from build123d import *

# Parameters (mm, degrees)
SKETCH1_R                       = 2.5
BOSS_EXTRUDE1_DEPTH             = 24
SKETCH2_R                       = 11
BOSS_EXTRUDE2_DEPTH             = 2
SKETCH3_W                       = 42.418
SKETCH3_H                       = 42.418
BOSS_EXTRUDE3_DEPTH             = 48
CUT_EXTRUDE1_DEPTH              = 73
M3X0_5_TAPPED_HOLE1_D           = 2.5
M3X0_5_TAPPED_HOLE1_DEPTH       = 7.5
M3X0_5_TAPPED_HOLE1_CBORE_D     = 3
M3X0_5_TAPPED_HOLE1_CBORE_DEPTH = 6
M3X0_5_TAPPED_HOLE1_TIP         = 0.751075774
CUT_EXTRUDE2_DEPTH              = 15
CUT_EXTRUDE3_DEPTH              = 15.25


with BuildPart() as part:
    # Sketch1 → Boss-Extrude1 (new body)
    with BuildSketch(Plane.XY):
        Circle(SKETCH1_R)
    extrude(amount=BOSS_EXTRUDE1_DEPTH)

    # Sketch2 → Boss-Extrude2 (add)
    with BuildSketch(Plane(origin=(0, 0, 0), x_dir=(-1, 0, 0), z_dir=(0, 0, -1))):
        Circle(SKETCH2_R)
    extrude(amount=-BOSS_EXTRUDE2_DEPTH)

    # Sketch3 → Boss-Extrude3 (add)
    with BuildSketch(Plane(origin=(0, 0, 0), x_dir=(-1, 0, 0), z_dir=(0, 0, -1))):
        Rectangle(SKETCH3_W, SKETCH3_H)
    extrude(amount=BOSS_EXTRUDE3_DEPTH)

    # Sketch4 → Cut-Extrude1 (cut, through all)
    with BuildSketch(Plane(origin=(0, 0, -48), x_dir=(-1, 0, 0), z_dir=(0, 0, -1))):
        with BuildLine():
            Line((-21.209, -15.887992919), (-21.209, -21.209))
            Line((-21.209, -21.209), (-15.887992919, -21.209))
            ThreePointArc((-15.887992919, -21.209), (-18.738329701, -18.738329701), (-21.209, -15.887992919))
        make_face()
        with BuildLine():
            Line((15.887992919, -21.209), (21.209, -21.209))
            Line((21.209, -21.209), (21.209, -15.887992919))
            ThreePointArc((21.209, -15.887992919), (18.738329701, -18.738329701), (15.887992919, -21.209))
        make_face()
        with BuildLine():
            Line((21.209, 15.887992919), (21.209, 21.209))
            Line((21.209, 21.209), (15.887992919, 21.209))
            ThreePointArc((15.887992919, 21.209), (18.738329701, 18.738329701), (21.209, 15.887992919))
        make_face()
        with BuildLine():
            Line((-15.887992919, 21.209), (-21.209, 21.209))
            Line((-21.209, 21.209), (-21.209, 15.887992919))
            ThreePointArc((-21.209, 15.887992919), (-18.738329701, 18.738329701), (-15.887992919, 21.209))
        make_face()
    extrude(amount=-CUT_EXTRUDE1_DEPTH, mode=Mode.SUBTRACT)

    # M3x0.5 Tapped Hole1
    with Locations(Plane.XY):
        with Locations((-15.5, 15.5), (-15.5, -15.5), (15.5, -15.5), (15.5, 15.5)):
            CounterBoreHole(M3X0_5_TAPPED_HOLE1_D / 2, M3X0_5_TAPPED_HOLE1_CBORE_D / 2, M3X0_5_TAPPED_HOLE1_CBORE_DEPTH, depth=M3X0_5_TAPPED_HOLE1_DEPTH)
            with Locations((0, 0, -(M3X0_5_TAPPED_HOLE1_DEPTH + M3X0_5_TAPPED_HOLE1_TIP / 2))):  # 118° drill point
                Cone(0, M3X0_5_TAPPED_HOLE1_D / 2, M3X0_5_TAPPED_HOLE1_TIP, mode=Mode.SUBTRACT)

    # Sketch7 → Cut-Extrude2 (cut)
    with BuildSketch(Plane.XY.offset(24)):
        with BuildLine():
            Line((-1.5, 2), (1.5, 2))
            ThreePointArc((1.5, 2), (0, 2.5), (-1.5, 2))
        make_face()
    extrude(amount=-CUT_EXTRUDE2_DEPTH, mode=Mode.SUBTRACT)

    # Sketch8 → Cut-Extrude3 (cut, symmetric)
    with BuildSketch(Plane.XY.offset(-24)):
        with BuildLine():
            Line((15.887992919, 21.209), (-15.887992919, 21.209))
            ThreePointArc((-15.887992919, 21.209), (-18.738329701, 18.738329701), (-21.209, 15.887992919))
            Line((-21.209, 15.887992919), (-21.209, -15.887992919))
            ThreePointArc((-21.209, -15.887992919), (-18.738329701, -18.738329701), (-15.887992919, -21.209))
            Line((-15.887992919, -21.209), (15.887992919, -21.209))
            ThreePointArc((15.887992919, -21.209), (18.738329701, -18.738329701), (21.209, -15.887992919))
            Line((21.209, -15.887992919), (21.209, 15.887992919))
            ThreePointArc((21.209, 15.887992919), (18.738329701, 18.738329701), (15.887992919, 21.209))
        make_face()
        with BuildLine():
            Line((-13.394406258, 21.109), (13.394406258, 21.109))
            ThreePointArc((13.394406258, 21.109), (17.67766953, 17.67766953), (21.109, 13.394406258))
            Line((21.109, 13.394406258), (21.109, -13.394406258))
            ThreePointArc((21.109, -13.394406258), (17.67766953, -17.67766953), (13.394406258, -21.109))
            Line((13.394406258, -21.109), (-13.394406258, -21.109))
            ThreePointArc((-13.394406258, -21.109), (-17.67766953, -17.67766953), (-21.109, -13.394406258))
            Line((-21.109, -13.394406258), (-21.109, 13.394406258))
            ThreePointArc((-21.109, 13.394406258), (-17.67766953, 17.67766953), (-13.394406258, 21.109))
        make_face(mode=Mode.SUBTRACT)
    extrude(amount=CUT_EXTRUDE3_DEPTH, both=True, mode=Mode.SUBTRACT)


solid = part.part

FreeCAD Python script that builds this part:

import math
import FreeCAD as App
import Part
import Sketcher
from FreeCAD import Vector


def add_polygon(sketch, points):
    """Adds a closed chain of lines whose ends are joined by coincident constraints."""
    first, n = sketch.GeometryCount, len(points)
    for a, b in zip(points, points[1:] + points[:1]):
        sketch.addGeometry(Part.LineSegment(App.Vector(*a, 0), App.Vector(*b, 0)), False)
    for i in range(n):
        sketch.addConstraint(Sketcher.Constraint("Coincident", first + i, 2, first + (i + 1) % n, 1))

doc = App.newDocument("Part")
body = doc.addObject("PartDesign::Body", "Body")

# Sketch on XY plane
sketch1 = doc.addObject("Sketcher::SketchObject", "Sketch")
body.addObject(sketch1)
sketch1.AttachmentSupport = (doc.XY_Plane, [""])
sketch1.MapMode = "FlatFace"
sketch1.addGeometry(Part.Circle(Vector(0, 0, 0), Vector(0, 0, 1), 2.5), False)
sketch1.addConstraint([
    Sketcher.Constraint("Coincident", 0, 3, -1, 1),
    Sketcher.Constraint("Diameter", 0, 5.0),
])
pad1 = doc.addObject("PartDesign::Pad", "Pad")
body.addObject(pad1)
pad1.Profile = sketch1
pad1.Length = 24

# Sketch on XY plane
sketch2 = doc.addObject("Sketcher::SketchObject", "Sketch001")
body.addObject(sketch2)
sketch2.AttachmentSupport = (doc.XY_Plane, [""])
sketch2.MapMode = "FlatFace"
sketch2.addGeometry(Part.Circle(Vector(0, 0, 0), Vector(0, 0, 1), 11), False)
sketch2.addConstraint([
    Sketcher.Constraint("Coincident", 0, 3, -1, 1),
    Sketcher.Constraint("Diameter", 0, 22.0),
])
pad2 = doc.addObject("PartDesign::Pad", "Pad001")
body.addObject(pad2)
pad2.Profile = sketch2
pad2.Length = 2

# Sketch on XY plane
sketch3 = doc.addObject("Sketcher::SketchObject", "Sketch002")
body.addObject(sketch3)
sketch3.AttachmentSupport = (doc.XY_Plane, [""])
sketch3.MapMode = "FlatFace"
add_polygon(sketch3, [(21, 21), (21, -21), (-21, -21), (-21, 21)])  # lines 0-3
sketch3.addConstraint([
    Sketcher.Constraint("Vertical", 0),
    Sketcher.Constraint("Horizontal", 1),
    Sketcher.Constraint("Vertical", 2),
    Sketcher.Constraint("Horizontal", 3),
    Sketcher.Constraint("Symmetric", 0, 2, 2, 2, -1, 1),
    Sketcher.Constraint("Equal", 3, 0),
    Sketcher.Constraint("DistanceX", 1, 2, 1, 1, 42.418),
])
pad3 = doc.addObject("PartDesign::Pad", "Pad002")
body.addObject(pad3)
pad3.Profile = sketch3
pad3.Length = 48
pad3.Reversed = True

# Sketch on XY plane
sketch4 = doc.addObject("Sketcher::SketchObject", "Sketch003")
body.addObject(sketch4)
sketch4.AttachmentSupport = (doc.XY_Plane, [""])
sketch4.MapMode = "FlatFace"
sketch4.AttachmentOffset = App.Placement(Vector(0, 0, -48), App.Rotation())
sketch4.addGeometry([
    Part.LineSegment(Vector(21, -16, 0), Vector(21, -21, 0)),  # 0
    Part.LineSegment(Vector(21, -21, 0), Vector(16, -21, 0)),  # 1
    Part.ArcOfCircle(Part.Circle(Vector(0, 0, 0), Vector(0, 0, 1), 27), math.radians(-53.16), math.radians(-36.84)),  # 2
    Part.LineSegment(Vector(-16, -21, 0), Vector(-21, -21, 0)),  # 3
    Part.LineSegment(Vector(-21, -21, 0), Vector(-21, -16, 0)),  # 4
    Part.ArcOfCircle(Part.Circle(Vector(0, 0, 0), Vector(0, 0, 1), 27), math.radians(-143.16), math.radians(-126.84)),  # 5
    Part.LineSegment(Vector(-21, 16, 0), Vector(-21, 21, 0)),  # 6
    Part.LineSegment(Vector(-21, 21, 0), Vector(-16, 21, 0)),  # 7
    Part.ArcOfCircle(Part.Circle(Vector(0, 0, 0), Vector(0, 0, 1), 27), math.radians(126.84), math.radians(143.16)),  # 8
    Part.LineSegment(Vector(16, 21, 0), Vector(21, 21, 0)),  # 9
    Part.LineSegment(Vector(21, 21, 0), Vector(21, 16, 0)),  # 10
    Part.ArcOfCircle(Part.Circle(Vector(0, 0, 0), Vector(0, 0, 1), 27), math.radians(36.84), math.radians(53.16)),  # 11
], False)
sketch4.addConstraint([
    Sketcher.Constraint("Coincident", 0, 2, 1, 1),
    Sketcher.Constraint("Coincident", 1, 2, 2, 1),
    Sketcher.Constraint("Coincident", 2, 2, 0, 1),
    Sketcher.Constraint("Coincident", 3, 2, 4, 1),
    Sketcher.Constraint("Coincident", 4, 2, 5, 1),
    Sketcher.Constraint("Coincident", 5, 2, 3, 1),
    Sketcher.Constraint("Coincident", 6, 2, 7, 1),
    Sketcher.Constraint("Coincident", 7, 2, 8, 1),
    Sketcher.Constraint("Coincident", 8, 2, 6, 1),
    Sketcher.Constraint("Coincident", 9, 2, 10, 1),
    Sketcher.Constraint("Coincident", 10, 2, 11, 1),
    Sketcher.Constraint("Coincident", 11, 2, 9, 1),
    Sketcher.Constraint("Vertical", 0),
    Sketcher.Constraint("Horizontal", 1),
    Sketcher.Constraint("Horizontal", 3),
    Sketcher.Constraint("Vertical", 4),
    Sketcher.Constraint("Vertical", 6),
    Sketcher.Constraint("Horizontal", 7),
    Sketcher.Constraint("Horizontal", 9),
    Sketcher.Constraint("Vertical", 10),
    Sketcher.Constraint("Coincident", 2, 3, -1, 1),
    Sketcher.Constraint("Coincident", 5, 3, -1, 1),
    Sketcher.Constraint("Coincident", 8, 3, -1, 1),
    Sketcher.Constraint("Coincident", 11, 3, -1, 1),
    Sketcher.Constraint("Equal", 2, 5),
    Sketcher.Constraint("Equal", 5, 8),
    Sketcher.Constraint("Equal", 8, 11),
    Sketcher.Constraint("Symmetric", 0, 2, 6, 2, -1, 1),
    Sketcher.Constraint("Symmetric", 3, 2, 9, 2, -1, 1),
    Sketcher.Constraint("Symmetric", 0, 2, 3, 2, -2),
    Sketcher.Constraint("Equal", 9, 0),
    Sketcher.Constraint("Radius", 2, 26.5),
    Sketcher.Constraint("DistanceX", -1, 1, 0, 2, 21.209),
])
pocket1 = doc.addObject("PartDesign::Pocket", "Pocket")
body.addObject(pocket1)
pocket1.Profile = sketch4
pocket1.Type = "ThroughAll"
pocket1.Reversed = True

# Sketch on XY plane
sketch5 = doc.addObject("Sketcher::SketchObject", "Sketch004")
body.addObject(sketch5)
sketch5.AttachmentSupport = (doc.XY_Plane, [""])
sketch5.MapMode = "FlatFace"
sketch5.addGeometry([
    Part.Circle(Vector(-15.5, 15.5, 0), Vector(0, 0, 1), 1.2),
    Part.Circle(Vector(-15.5, -15.5, 0), Vector(0, 0, 1), 1.2),
    Part.Circle(Vector(15.5, -15.5, 0), Vector(0, 0, 1), 1.2),
    Part.Circle(Vector(15.5, 15.5, 0), Vector(0, 0, 1), 1.2),
], False)
sketch5.addConstraint([
    Sketcher.Constraint("Equal", 0, 1),
    Sketcher.Constraint("Equal", 1, 2),
    Sketcher.Constraint("Equal", 2, 3),
    Sketcher.Constraint("Symmetric", 0, 3, 2, 3, -1, 1),
    Sketcher.Constraint("Symmetric", 1, 3, 3, 3, -1, 1),
    Sketcher.Constraint("Symmetric", 1, 3, 2, 3, -2),
    Sketcher.Constraint("Diameter", 0, 2.5),
    Sketcher.Constraint("DistanceY", 1, 3, 0, 3, 31.0),
    Sketcher.Constraint("DistanceX", 1, 3, 2, 3, 31.0),
])
doc.recompute()
hole = doc.addObject("PartDesign::Hole", "Hole")
body.addObject(hole)
hole.Profile = sketch5
hole.ThreadType = "None"
hole.Diameter = 2.5
hole.DepthType = "Dimension"
hole.Depth = 7.5
hole.DrillPoint = "Angled"
hole.DrillPointAngle = 118
hole.HoleCutType = "Counterbore"
hole.HoleCutDiameter = 3
hole.HoleCutDepth = 6

# Sketch on XY plane
sketch6 = doc.addObject("Sketcher::SketchObject", "Sketch005")
body.addObject(sketch6)
sketch6.AttachmentSupport = (doc.XY_Plane, [""])
sketch6.MapMode = "FlatFace"
sketch6.AttachmentOffset = App.Placement(Vector(0, 0, 24), App.Rotation())
sketch6.addGeometry([
    Part.LineSegment(Vector(-1.5, 2, 0), Vector(1.5, 2, 0)),
    Part.ArcOfCircle(Part.Circle(Vector(0, 0, 0), Vector(0, 0, 1), 2.5), math.radians(53), math.radians(127)),
], False)
sketch6.addConstraint([
    Sketcher.Constraint("Coincident", 0, 1, 1, 2),
    Sketcher.Constraint("Coincident", 1, 1, 0, 2),
    Sketcher.Constraint("Horizontal", 0),
    Sketcher.Constraint("Coincident", 1, 3, -1, 1),
    Sketcher.Constraint("Radius", 1, 2.5),
    Sketcher.Constraint("DistanceX", 0, 1, 0, 2, 3.0),
])
pocket2 = doc.addObject("PartDesign::Pocket", "Pocket001")
body.addObject(pocket2)
pocket2.Profile = sketch6
pocket2.Length = 15

# Sketch on XY plane
sketch7 = doc.addObject("Sketcher::SketchObject", "Sketch006")
body.addObject(sketch7)
sketch7.AttachmentSupport = (doc.XY_Plane, [""])
sketch7.MapMode = "FlatFace"
sketch7.AttachmentOffset = App.Placement(Vector(0, 0, -24), App.Rotation())
sketch7.addGeometry([
    Part.LineSegment(Vector(16, 21, 0), Vector(-16, 21, 0)),  # 0
    Part.ArcOfCircle(Part.Circle(Vector(0, 0, 0), Vector(0, 0, 1), 27), math.radians(126.84), math.radians(143.16)),  # 1
    Part.LineSegment(Vector(-21, 16, 0), Vector(-21, -16, 0)),  # 2
    Part.ArcOfCircle(Part.Circle(Vector(0, 0, 0), Vector(0, 0, 1), 27), math.radians(-143.16), math.radians(-126.84)),  # 3
    Part.LineSegment(Vector(-16, -21, 0), Vector(16, -21, 0)),  # 4
    Part.ArcOfCircle(Part.Circle(Vector(0, 0, 0), Vector(0, 0, 1), 27), math.radians(-53.16), math.radians(-36.84)),  # 5
    Part.LineSegment(Vector(21, -16, 0), Vector(21, 16, 0)),  # 6
    Part.ArcOfCircle(Part.Circle(Vector(0, 0, 0), Vector(0, 0, 1), 27), math.radians(36.84), math.radians(53.16)),  # 7
    Part.ArcOfCircle(Part.Circle(Vector(0, 0, 0), Vector(0, 0, 1), 25), math.radians(122), math.radians(148)),  # 8
    Part.LineSegment(Vector(-13, 21, 0), Vector(13, 21, 0)),  # 9
    Part.ArcOfCircle(Part.Circle(Vector(0, 0, 0), Vector(0, 0, 1), 25), math.radians(32), math.radians(58)),  # 10
    Part.LineSegment(Vector(21, 13, 0), Vector(21, -13, 0)),  # 11
    Part.ArcOfCircle(Part.Circle(Vector(0, 0, 0), Vector(0, 0, 1), 25), math.radians(-58), math.radians(-32)),  # 12
    Part.LineSegment(Vector(13, -21, 0), Vector(-13, -21, 0)),  # 13
    Part.ArcOfCircle(Part.Circle(Vector(0, 0, 0), Vector(0, 0, 1), 25), math.radians(-148), math.radians(-122)),  # 14
    Part.LineSegment(Vector(-21, -13, 0), Vector(-21, 13, 0)),  # 15
], False)
sketch7.addConstraint([
    Sketcher.Constraint("Coincident", 0, 2, 1, 1),
    Sketcher.Constraint("Coincident", 1, 2, 2, 1),
    Sketcher.Constraint("Coincident", 2, 2, 3, 1),
    Sketcher.Constraint("Coincident", 3, 2, 4, 1),
    Sketcher.Constraint("Coincident", 4, 2, 5, 1),
    Sketcher.Constraint("Coincident", 5, 2, 6, 1),
    Sketcher.Constraint("Coincident", 6, 2, 7, 1),
    Sketcher.Constraint("Coincident", 7, 2, 0, 1),
    Sketcher.Constraint("Coincident", 8, 1, 9, 1),
    Sketcher.Constraint("Coincident", 9, 2, 10, 2),
    Sketcher.Constraint("Coincident", 10, 1, 11, 1),
    Sketcher.Constraint("Coincident", 11, 2, 12, 2),
    Sketcher.Constraint("Coincident", 12, 1, 13, 1),
    Sketcher.Constraint("Coincident", 13, 2, 14, 2),
    Sketcher.Constraint("Coincident", 14, 1, 15, 1),
    Sketcher.Constraint("Coincident", 15, 2, 8, 2),
    Sketcher.Constraint("Horizontal", 0),
    Sketcher.Constraint("Vertical", 2),
    Sketcher.Constraint("Horizontal", 4),
    Sketcher.Constraint("Vertical", 6),
    Sketcher.Constraint("Horizontal", 9),
    Sketcher.Constraint("Vertical", 11),
    Sketcher.Constraint("Horizontal", 13),
    Sketcher.Constraint("Vertical", 15),
    Sketcher.Constraint("Coincident", 1, 3, -1, 1),
    Sketcher.Constraint("Coincident", 3, 3, -1, 1),
    Sketcher.Constraint("Coincident", 5, 3, -1, 1),
    Sketcher.Constraint("Coincident", 7, 3, -1, 1),
    Sketcher.Constraint("Coincident", 8, 3, -1, 1),
    Sketcher.Constraint("Coincident", 10, 3, -1, 1),
    Sketcher.Constraint("Coincident", 12, 3, -1, 1),
    Sketcher.Constraint("Coincident", 14, 3, -1, 1),
    Sketcher.Constraint("Equal", 1, 3),
    Sketcher.Constraint("Equal", 3, 5),
    Sketcher.Constraint("Equal", 5, 7),
    Sketcher.Constraint("Equal", 8, 10),
    Sketcher.Constraint("Equal", 10, 12),
    Sketcher.Constraint("Equal", 12, 14),
    Sketcher.Constraint("Horizontal", 2, 2, 5, 2),
    Sketcher.Constraint("Horizontal", 11, 2, 14, 1),
    Sketcher.Constraint("Vertical", 0, 2, 3, 2),
    Sketcher.Constraint("Vertical", 9, 2, 12, 1),
    Sketcher.Constraint("Equal", 4, 2),
    Sketcher.Constraint("Equal", 13, 11),
    Sketcher.Constraint("Radius", 8, 25.0),
    Sketcher.Constraint("Radius", 1, 26.5),
    Sketcher.Constraint("DistanceY", 8, 1, 0, 2, 0.1),
    Sketcher.Constraint("DistanceY", -1, 1, 0, 2, 21.209),
])
pocket3 = doc.addObject("PartDesign::Pocket", "Pocket002")
body.addObject(pocket3)
pocket3.Profile = sketch7
pocket3.Length = 30.5
pocket3.Midplane = True

doc.recompute()
